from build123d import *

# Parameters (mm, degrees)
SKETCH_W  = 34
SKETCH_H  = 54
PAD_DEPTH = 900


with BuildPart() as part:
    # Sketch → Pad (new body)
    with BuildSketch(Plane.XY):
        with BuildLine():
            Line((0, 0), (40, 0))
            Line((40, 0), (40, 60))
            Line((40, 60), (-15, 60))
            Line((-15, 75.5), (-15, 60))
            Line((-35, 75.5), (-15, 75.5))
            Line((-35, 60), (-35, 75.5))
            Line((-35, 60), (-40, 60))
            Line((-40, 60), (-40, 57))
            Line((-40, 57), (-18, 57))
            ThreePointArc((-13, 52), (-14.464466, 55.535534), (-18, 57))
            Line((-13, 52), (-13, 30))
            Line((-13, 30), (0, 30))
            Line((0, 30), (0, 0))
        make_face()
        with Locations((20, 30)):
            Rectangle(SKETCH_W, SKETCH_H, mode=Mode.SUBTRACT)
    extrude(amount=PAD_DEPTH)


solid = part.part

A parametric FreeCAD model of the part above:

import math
import FreeCAD as App
import Part
import Sketcher
Q = App.Units.Quantity

doc = App.newDocument("Part")
body = doc.addObject("PartDesign::Body", "Body")

# Sketch on XY plane
sketch1 = body.newObject("Sketcher::SketchObject", "Sketch")
sketch1.AttachmentSupport = (doc.getObject("XY_Plane"), [""])
sketch1.MapMode = "FlatFace"
sketch1.addGeometry([
    Part.LineSegment(App.Vector(0, 0, 0), App.Vector(40, 0, 0)),  # 0
    Part.LineSegment(App.Vector(40, 0, 0), App.Vector(40, 60, 0)),  # 1
    Part.LineSegment(App.Vector(40, 60, 0), App.Vector(-15, 60, 0)),  # 2
    Part.LineSegment(App.Vector(-15, 60, 0), App.Vector(-15, 75.5, 0)),  # 3
    Part.LineSegment(App.Vector(-15, 75.5, 0), App.Vector(-35, 75.5, 0)),  # 4
    Part.LineSegment(App.Vector(-35, 75.5, 0), App.Vector(-35, 60, 0)),  # 5
    Part.LineSegment(App.Vector(-35, 60, 0), App.Vector(-40, 60, 0)),  # 6
    Part.LineSegment(App.Vector(-40, 60, 0), App.Vector(-40, 57, 0)),  # 7
    Part.LineSegment(App.Vector(-40, 57, 0), App.Vector(-18, 57, 0)),  # 8
    Part.ArcOfCircle(Part.Circle(App.Vector(-18, 52, 0), App.Vector(0, 0, 1), 5), math.radians(0), math.radians(90)),  # 9
    Part.LineSegment(App.Vector(-13, 52, 0), App.Vector(-13, 30, 0)),  # 10
    Part.LineSegment(App.Vector(-13, 30, 0), App.Vector(0, 30, 0)),  # 11
    Part.LineSegment(App.Vector(0, 30, 0), App.Vector(0, 0, 0)),  # 12
    Part.LineSegment(App.Vector(37, 3, 0), App.Vector(3, 3, 0)),  # 13
    Part.LineSegment(App.Vector(3, 3, 0), App.Vector(3, 57, 0)),  # 14
    Part.LineSegment(App.Vector(3, 57, 0), App.Vector(37, 57, 0)),  # 15
    Part.LineSegment(App.Vector(37, 57, 0), App.Vector(37, 3, 0)),  # 16
], False)
sketch1.addConstraint([
    Sketcher.Constraint("Coincident", 0, 2, 1, 1),
    Sketcher.Constraint("Coincident", 1, 2, 2, 1),
    Sketcher.Constraint("Coincident", 2, 2, 3, 1),
    Sketcher.Constraint("Coincident", 3, 2, 4, 1),
    Sketcher.Constraint("Coincident", 4, 2, 5, 1),
    Sketcher.Constraint("Coincident", 5, 2, 6, 1),
    Sketcher.Constraint("Coincident", 6, 2, 7, 1),
    Sketcher.Constraint("Coincident", 7, 2, 8, 1),
    Sketcher.Constraint("Tangent", 8, 2, 9, 2),
    Sketcher.Constraint("Tangent", 9, 1, 10, 1),
    Sketcher.Constraint("Coincident", 10, 2, 11, 1),
    Sketcher.Constraint("Coincident", 11, 2, 12, 1),
    Sketcher.Constraint("Coincident", 12, 2, 0, 1),
    Sketcher.Constraint("Coincident", 13, 2, 14, 1),
    Sketcher.Constraint("Coincident", 14, 2, 15, 1),
    Sketcher.Constraint("Coincident", 15, 2, 16, 1),
    Sketcher.Constraint("Coincident", 16, 2, 13, 1),
    Sketcher.Constraint("Horizontal", 0),
    Sketcher.Constraint("Vertical", 1),
    Sketcher.Constraint("Horizontal", 2),
    Sketcher.Constraint("Vertical", 3),
    Sketcher.Constraint("Horizontal", 4),
    Sketcher.Constraint("Vertical", 5),
    Sketcher.Constraint("Horizontal", 6),
    Sketcher.Constraint("Vertical", 7),
    Sketcher.Constraint("Horizontal", 8),
    Sketcher.Constraint("Vertical", 10),
    Sketcher.Constraint("Horizontal", 11),
    Sketcher.Constraint("Vertical", 12),
    Sketcher.Constraint("Horizontal", 13),
    Sketcher.Constraint("Vertical", 14),
    Sketcher.Constraint("Horizontal", 15),
    Sketcher.Constraint("Vertical", 16),
    Sketcher.Constraint("Coincident", 12, 2, -1, 1),
    Sketcher.Constraint("Symmetric", 1, 2, 6, 2, -2),
    Sketcher.Constraint("Horizontal", 8, 2, 14, 2),
    Sketcher.Constraint("Equal", 8, 10),
    Sketcher.Constraint("Radius", 9, Q("5 mm")),
    Sketcher.Constraint("DistanceX", 0, 1, 0, 2, Q("40 mm")),
    Sketcher.Constraint("DistanceX", 2, 2, 2, 1, Q("55 mm")),
    Sketcher.Constraint("DistanceX", 4, 2, 4, 1, Q("20 mm")),
    Sketcher.Constraint("DistanceX", 8, 1, 8, 2, Q("22 mm")),
    Sketcher.Constraint("DistanceX", 13, 2, 13, 1, Q("34 mm")),
    Sketcher.Constraint("DistanceY", 1, 1, 1, 2, Q("60 mm")),
    Sketcher.Constraint("DistanceY", 7, 2, 7, 1, Q("3 mm")),
    Sketcher.Constraint("DistanceY", 14, 1, 14, 2, Q("54 mm")),
    Sketcher.Constraint("DistanceY", 3, 1, 3, 2, Q("15.5 mm")),
    Sketcher.Constraint("DistanceX", -1, 1, 13, 2, Q("3 mm")),
])
pad1 = body.newObject("PartDesign::Pad", "Pad")
pad1.Profile = sketch1
pad1.Length = 900

doc.recompute()
